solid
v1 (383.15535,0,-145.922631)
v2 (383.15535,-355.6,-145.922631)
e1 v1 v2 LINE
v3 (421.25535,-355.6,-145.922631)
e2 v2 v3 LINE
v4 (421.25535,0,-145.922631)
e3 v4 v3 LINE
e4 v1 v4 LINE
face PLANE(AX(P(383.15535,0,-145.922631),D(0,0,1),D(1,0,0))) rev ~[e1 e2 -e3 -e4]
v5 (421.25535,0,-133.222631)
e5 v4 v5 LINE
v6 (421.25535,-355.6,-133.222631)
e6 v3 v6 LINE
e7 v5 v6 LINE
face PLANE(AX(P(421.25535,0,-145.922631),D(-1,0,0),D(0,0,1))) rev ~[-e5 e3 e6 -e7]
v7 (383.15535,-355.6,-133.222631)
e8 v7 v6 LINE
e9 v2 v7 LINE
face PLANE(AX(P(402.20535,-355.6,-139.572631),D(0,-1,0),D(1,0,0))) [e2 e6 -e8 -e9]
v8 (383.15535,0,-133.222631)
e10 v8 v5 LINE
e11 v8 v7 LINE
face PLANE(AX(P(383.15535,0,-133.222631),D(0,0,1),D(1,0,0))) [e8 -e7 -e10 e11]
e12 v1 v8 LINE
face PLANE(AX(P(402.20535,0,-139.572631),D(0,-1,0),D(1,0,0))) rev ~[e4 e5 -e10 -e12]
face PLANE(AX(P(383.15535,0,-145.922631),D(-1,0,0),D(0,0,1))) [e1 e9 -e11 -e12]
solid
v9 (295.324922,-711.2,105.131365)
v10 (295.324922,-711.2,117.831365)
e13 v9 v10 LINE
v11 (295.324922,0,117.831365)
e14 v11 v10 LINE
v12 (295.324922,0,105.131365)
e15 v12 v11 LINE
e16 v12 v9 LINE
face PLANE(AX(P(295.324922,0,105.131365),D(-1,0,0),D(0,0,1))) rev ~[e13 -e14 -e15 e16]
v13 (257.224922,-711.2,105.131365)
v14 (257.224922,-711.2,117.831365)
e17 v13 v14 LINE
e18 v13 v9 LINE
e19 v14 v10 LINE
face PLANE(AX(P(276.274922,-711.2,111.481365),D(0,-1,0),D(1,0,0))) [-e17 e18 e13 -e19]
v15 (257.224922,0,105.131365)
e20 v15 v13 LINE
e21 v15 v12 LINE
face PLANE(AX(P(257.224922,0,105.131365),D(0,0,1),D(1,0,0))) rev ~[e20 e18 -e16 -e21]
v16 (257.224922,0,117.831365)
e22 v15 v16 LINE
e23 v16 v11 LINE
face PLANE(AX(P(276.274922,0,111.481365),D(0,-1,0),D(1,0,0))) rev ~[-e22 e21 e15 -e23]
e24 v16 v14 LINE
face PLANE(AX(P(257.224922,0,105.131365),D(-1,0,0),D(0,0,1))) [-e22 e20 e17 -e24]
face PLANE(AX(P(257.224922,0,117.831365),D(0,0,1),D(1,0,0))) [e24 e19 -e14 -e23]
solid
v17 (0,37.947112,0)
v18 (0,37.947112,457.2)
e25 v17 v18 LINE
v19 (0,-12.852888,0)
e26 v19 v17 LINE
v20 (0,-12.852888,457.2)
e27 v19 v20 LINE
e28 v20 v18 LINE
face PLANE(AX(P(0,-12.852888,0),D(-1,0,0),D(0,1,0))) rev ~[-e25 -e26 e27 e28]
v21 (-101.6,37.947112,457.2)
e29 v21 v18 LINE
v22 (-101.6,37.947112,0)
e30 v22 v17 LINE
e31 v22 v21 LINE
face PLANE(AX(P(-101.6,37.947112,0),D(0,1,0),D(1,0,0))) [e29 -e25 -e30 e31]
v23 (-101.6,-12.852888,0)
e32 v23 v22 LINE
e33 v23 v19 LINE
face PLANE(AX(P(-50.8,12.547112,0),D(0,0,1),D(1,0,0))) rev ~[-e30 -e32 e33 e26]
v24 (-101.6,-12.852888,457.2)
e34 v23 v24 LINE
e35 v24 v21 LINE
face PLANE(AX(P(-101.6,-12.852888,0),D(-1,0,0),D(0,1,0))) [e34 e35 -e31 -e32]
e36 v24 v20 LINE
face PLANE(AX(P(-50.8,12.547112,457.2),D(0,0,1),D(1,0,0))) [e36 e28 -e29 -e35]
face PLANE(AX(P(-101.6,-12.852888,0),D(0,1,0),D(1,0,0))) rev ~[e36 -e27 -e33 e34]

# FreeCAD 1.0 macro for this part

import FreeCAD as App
import Part
import Sketcher
from FreeCAD import Vector
Q = App.Units.Quantity

doc = App.newDocument("Part")
body = doc.addObject("PartDesign::Body", "Body")

# Sketch on XY plane
sketch1 = body.newObject("Sketcher::SketchObject", "Sketch")
sketch1.AttachmentSupport = (doc.getObject("XY_Plane"), [""])
sketch1.MapMode = "FlatFace"
sketch1.addGeometry([
    Part.LineSegment(Vector(-102, 38, 0), Vector(-102, -13, 0)),
    Part.LineSegment(Vector(-102, -13, 0), Vector(0, -13, 0)),
    Part.LineSegment(Vector(0, -13, 0), Vector(0, 38, 0)),
    Part.LineSegment(Vector(0, 38, 0), Vector(-102, 38, 0)),
], False)
sketch1.addConstraint([
    Sketcher.Constraint("Coincident", 0, 2, 1, 1),
    Sketcher.Constraint("Coincident", 1, 2, 2, 1),
    Sketcher.Constraint("Coincident", 2, 2, 3, 1),
    Sketcher.Constraint("Coincident", 3, 2, 0, 1),
    Sketcher.Constraint("Vertical", 0),
    Sketcher.Constraint("Horizontal", 1),
    Sketcher.Constraint("Vertical", 2),
    Sketcher.Constraint("Horizontal", 3),
    Sketcher.Constraint("PointOnObject", 1, 2, -2),
    Sketcher.Constraint("DistanceX", 1, 1, 1, 2, Q("4 in")),
    Sketcher.Constraint("DistanceY", 0, 2, 0, 1, Q("2 in")),
    Sketcher.Constraint("DistanceY", -1, 1, 2, 2, 37.947112),
])
pad1 = body.newObject("PartDesign::Pad", "Pad")
pad1.Profile = sketch1
pad1.Length = Q("18 in")
body2 = doc.addObject("PartDesign::Body", "Body001")

# Sketch on XZ plane
sketch2 = body2.newObject("Sketcher::SketchObject", "Sketch001")
sketch2.AttachmentSupport = (doc.getObject("XZ_Plane001"), [""])
sketch2.MapMode = "FlatFace"
sketch2.addGeometry([
    Part.LineSegment(Vector(383, -133, 0), Vector(383, -146, 0)),
    Part.LineSegment(Vector(383, -146, 0), Vector(421, -146, 0)),
    Part.LineSegment(Vector(421, -146, 0), Vector(421, -133, 0)),
    Part.LineSegment(Vector(421, -133, 0), Vector(383, -133, 0)),
], False)
sketch2.addConstraint([
    Sketcher.Constraint("Coincident", 0, 2, 1, 1),
    Sketcher.Constraint("Coincident", 1, 2, 2, 1),
    Sketcher.Constraint("Coincident", 2, 2, 3, 1),
    Sketcher.Constraint("Coincident", 3, 2, 0, 1),
    Sketcher.Constraint("Vertical", 0),
    Sketcher.Constraint("Horizontal", 1),
    Sketcher.Constraint("Vertical", 2),
    Sketcher.Constraint("Horizontal", 3),
    Sketcher.Constraint("DistanceX", 1, 1, 1, 2, Q("1.5 in")),
    Sketcher.Constraint("DistanceY", 0, 2, 0, 1, Q("0.5 in")),
    Sketcher.Constraint("DistanceX", -1, 1, 0, 2, 383.15535),
    Sketcher.Constraint("DistanceY", 0, 2, -1, 1, 145.922631),
])
pad2 = body2.newObject("PartDesign::Pad", "Pad001")
pad2.Profile = sketch2
pad2.Length = Q("14 in")
body3 = doc.addObject("PartDesign::Body", "Body002")

# Sketch on XZ plane
sketch3 = body3.newObject("Sketcher::SketchObject", "Sketch002")
sketch3.AttachmentSupport = (doc.getObject("XZ_Plane002"), [""])
sketch3.MapMode = "FlatFace"
sketch3.addGeometry([
    Part.LineSegment(Vector(257, 118, 0), Vector(257, 105, 0)),
    Part.LineSegment(Vector(257, 105, 0), Vector(295, 105, 0)),
    Part.LineSegment(Vector(295, 105, 0), Vector(295, 118, 0)),
    Part.LineSegment(Vector(295, 118, 0), Vector(257, 118, 0)),
], False)
sketch3.addConstraint([
    Sketcher.Constraint("Coincident", 0, 2, 1, 1),
    Sketcher.Constraint("Coincident", 1, 2, 2, 1),
    Sketcher.Constraint("Coincident", 2, 2, 3, 1),
    Sketcher.Constraint("Coincident", 3, 2, 0, 1),
    Sketcher.Constraint("Vertical", 0),
    Sketcher.Constraint("Horizontal", 1),
    Sketcher.Constraint("Vertical", 2),
    Sketcher.Constraint("Horizontal", 3),
    Sketcher.Constraint("DistanceX", 1, 1, 1, 2, Q("1.5 in")),
    Sketcher.Constraint("DistanceY", 0, 2, 0, 1, Q("0.5 in")),
    Sketcher.Constraint("DistanceX", -1, 1, 0, 2, 257.224922),
    Sketcher.Constraint("DistanceY", -1, 1, 0, 2, 105.131365),
])
pad3 = body3.newObject("PartDesign::Pad", "Pad002")
pad3.Profile = sketch3
pad3.Length = Q("28 in")

doc.recompute()
